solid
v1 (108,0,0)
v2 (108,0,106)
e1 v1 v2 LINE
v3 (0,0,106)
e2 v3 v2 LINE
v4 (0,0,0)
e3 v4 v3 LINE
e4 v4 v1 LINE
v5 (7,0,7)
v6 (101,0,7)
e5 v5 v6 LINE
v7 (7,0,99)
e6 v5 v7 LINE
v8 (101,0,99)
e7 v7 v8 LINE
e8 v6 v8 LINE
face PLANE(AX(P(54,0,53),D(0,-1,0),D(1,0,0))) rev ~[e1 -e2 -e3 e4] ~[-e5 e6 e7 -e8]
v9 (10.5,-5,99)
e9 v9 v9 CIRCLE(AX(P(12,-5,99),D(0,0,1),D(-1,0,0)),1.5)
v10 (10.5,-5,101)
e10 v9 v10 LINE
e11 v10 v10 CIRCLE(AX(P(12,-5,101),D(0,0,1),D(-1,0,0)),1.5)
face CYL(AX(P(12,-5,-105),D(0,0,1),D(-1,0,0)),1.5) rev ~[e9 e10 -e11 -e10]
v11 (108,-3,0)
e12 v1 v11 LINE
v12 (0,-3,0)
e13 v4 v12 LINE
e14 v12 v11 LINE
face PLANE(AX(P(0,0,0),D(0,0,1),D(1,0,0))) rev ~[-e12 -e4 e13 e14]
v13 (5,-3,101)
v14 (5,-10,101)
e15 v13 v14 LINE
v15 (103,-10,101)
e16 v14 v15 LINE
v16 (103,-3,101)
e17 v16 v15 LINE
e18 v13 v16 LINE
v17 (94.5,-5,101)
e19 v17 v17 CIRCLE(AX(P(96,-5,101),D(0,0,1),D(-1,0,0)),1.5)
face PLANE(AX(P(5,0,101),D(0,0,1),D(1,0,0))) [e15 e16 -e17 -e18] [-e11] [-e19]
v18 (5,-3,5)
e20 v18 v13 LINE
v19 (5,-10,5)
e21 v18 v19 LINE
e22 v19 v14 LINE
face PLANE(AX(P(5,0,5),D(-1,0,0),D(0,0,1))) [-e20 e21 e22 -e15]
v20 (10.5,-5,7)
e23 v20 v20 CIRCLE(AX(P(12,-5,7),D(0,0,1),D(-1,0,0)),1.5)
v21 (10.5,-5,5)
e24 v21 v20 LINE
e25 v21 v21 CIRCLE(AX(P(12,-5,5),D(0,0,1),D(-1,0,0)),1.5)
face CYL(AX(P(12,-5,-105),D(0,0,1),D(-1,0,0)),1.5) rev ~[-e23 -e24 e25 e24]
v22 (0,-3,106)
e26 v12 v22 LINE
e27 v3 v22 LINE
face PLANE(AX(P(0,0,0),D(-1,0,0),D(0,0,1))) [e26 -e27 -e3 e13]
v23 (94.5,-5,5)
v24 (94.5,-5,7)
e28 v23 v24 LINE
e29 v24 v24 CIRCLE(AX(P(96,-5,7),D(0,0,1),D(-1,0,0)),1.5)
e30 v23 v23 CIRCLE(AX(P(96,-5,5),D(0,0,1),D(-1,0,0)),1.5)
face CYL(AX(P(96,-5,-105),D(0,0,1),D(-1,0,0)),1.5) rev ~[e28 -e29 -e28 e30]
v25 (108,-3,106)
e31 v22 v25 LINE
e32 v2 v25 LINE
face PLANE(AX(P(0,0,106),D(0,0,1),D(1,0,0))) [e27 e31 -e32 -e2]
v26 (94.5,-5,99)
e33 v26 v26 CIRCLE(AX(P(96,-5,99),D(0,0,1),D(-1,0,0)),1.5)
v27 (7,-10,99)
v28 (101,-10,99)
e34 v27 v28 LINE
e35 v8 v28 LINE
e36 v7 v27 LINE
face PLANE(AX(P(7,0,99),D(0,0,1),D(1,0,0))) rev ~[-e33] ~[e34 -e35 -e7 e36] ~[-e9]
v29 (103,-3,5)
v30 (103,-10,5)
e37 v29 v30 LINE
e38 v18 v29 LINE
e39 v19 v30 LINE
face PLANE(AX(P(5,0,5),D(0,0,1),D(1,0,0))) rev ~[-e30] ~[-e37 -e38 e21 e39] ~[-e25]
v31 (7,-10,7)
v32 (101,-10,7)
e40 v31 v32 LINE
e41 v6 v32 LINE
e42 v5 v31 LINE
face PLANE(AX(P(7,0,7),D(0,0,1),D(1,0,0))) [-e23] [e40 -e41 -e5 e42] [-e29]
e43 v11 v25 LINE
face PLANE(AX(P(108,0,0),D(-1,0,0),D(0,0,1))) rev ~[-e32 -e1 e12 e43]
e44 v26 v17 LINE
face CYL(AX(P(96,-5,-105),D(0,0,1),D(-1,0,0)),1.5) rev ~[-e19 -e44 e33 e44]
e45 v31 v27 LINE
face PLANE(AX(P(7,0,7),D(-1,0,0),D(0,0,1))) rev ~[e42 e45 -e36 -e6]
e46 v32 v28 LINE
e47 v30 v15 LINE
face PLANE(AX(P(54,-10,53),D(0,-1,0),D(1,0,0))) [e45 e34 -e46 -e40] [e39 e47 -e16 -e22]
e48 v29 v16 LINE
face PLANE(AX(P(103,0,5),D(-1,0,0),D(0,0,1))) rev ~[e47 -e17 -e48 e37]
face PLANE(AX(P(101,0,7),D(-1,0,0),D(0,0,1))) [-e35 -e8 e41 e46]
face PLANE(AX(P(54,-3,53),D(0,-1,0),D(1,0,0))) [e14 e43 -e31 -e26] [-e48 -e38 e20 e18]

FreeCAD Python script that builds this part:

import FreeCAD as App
import Part
import Sketcher

doc = App.newDocument("Part")
params = doc.addObject("Spreadsheet::Sheet", "Params")
for row, (alias, value) in enumerate([
    ("sketch1_width", "98 mm"),
    ("sketch1_width2", "94 mm"),
    ("sketch1_height", "96 mm"),
    ("sketch1_height2", "92 mm"),
    ("pad1_length", "10 mm"),
    ("sketch2_width", "108 mm"),
    ("sketch2_width2", "98 mm"),
    ("sketch2_height", "106 mm"),
    ("sketch2_height2", "96 mm"),
    ("pad2_length", "3 mm"),
    ("sketch3_diameter", "3 mm"),
    ("hole_diameter", "3 mm"),
    ("hole_depth", "110 mm"),
], start=1):
    params.set(f"A{row}", alias)
    params.set(f"B{row}", "=" + value)
    params.setAlias(f"B{row}", alias)

body = doc.addObject("PartDesign::Body", "Body")

sketch1 = body.newObject("Sketcher::SketchObject", "Sketch")
sketch1.AttachmentSupport = (doc.getObject("XZ_Plane"), [""])
sketch1.MapMode = "FlatFace"
sketch1.addGeometry([
    Part.LineSegment(App.Vector(5, 101, 0), App.Vector(5, 5, 0)),
    Part.LineSegment(App.Vector(5, 5, 0), App.Vector(103, 5, 0)),
    Part.LineSegment(App.Vector(103, 5, 0), App.Vector(103, 101, 0)),
    Part.LineSegment(App.Vector(103, 101, 0), App.Vector(5, 101, 0)),
    Part.LineSegment(App.Vector(101, 7, 0), App.Vector(7, 7, 0)),
    Part.LineSegment(App.Vector(7, 7, 0), App.Vector(7, 99, 0)),
    Part.LineSegment(App.Vector(7, 99, 0), App.Vector(101, 99, 0)),
    Part.LineSegment(App.Vector(101, 99, 0), App.Vector(101, 7, 0)),
], False)
sketch1.addConstraint([
    Sketcher.Constraint("Coincident", 0, 2, 1, 1),
    Sketcher.Constraint("Coincident", 1, 2, 2, 1),
    Sketcher.Constraint("Coincident", 2, 2, 3, 1),
    Sketcher.Constraint("Coincident", 3, 2, 0, 1),
    Sketcher.Constraint("Coincident", 4, 2, 5, 1),
    Sketcher.Constraint("Coincident", 5, 2, 6, 1),
    Sketcher.Constraint("Coincident", 6, 2, 7, 1),
    Sketcher.Constraint("Coincident", 7, 2, 4, 1),
    Sketcher.Constraint("Vertical", 0),
    Sketcher.Constraint("Horizontal", 1),
    Sketcher.Constraint("Vertical", 2),
    Sketcher.Constraint("Horizontal", 3),
    Sketcher.Constraint("Horizontal", 4),
    Sketcher.Constraint("Vertical", 5),
    Sketcher.Constraint("Horizontal", 6),
    Sketcher.Constraint("Vertical", 7),
    Sketcher.Constraint("DistanceX", 1, 1, 1, 2, 98.0),
    Sketcher.Constraint("DistanceX", 4, 2, 4, 1, 94.0),
    Sketcher.Constraint("DistanceY", 0, 2, 0, 1, 96.0),
    Sketcher.Constraint("DistanceY", 5, 1, 5, 2, 92.0),
    Sketcher.Constraint("DistanceX", -1, 1, 0, 2, 5.0),
    Sketcher.Constraint("DistanceY", -1, 1, 0, 2, 5.0),
    Sketcher.Constraint("DistanceX", -1, 1, 4, 2, 7.0),
    Sketcher.Constraint("DistanceY", -1, 1, 4, 2, 7.0),
])
sketch1.setExpression("Constraints[16]", "Params.sketch1_width")
sketch1.setExpression("Constraints[17]", "Params.sketch1_width2")
sketch1.setExpression("Constraints[18]", "Params.sketch1_height")
sketch1.setExpression("Constraints[19]", "Params.sketch1_height2")
pad1 = body.newObject("PartDesign::Pad", "Pad")
pad1.Profile = sketch1
pad1.setExpression("Length", "Params.pad1_length")

sketch2 = body.newObject("Sketcher::SketchObject", "Sketch001")
sketch2.AttachmentSupport = (doc.getObject("XZ_Plane"), [""])
sketch2.MapMode = "FlatFace"
sketch2.addGeometry([
    Part.LineSegment(App.Vector(0, 106, 0), App.Vector(0, 0, 0)),
    Part.LineSegment(App.Vector(0, 0, 0), App.Vector(108, 0, 0)),
    Part.LineSegment(App.Vector(108, 0, 0), App.Vector(108, 106, 0)),
    Part.LineSegment(App.Vector(108, 106, 0), App.Vector(0, 106, 0)),
    Part.LineSegment(App.Vector(103, 5, 0), App.Vector(5, 5, 0)),
    Part.LineSegment(App.Vector(5, 5, 0), App.Vector(5, 101, 0)),
    Part.LineSegment(App.Vector(5, 101, 0), App.Vector(103, 101, 0)),
    Part.LineSegment(App.Vector(103, 101, 0), App.Vector(103, 5, 0)),
], False)
sketch2.addConstraint([
    Sketcher.Constraint("Coincident", 0, 2, 1, 1),
    Sketcher.Constraint("Coincident", 1, 2, 2, 1),
    Sketcher.Constraint("Coincident", 2, 2, 3, 1),
    Sketcher.Constraint("Coincident", 3, 2, 0, 1),
    Sketcher.Constraint("Coincident", 4, 2, 5, 1),
    Sketcher.Constraint("Coincident", 5, 2, 6, 1),
    Sketcher.Constraint("Coincident", 6, 2, 7, 1),
    Sketcher.Constraint("Coincident", 7, 2, 4, 1),
    Sketcher.Constraint("Vertical", 0),
    Sketcher.Constraint("Horizontal", 1),
    Sketcher.Constraint("Vertical", 2),
    Sketcher.Constraint("Horizontal", 3),
    Sketcher.Constraint("Horizontal", 4),
    Sketcher.Constraint("Vertical", 5),
    Sketcher.Constraint("Horizontal", 6),
    Sketcher.Constraint("Vertical", 7),
    Sketcher.Constraint("Coincident", 0, 2, -1, 1),
    Sketcher.Constraint("DistanceX", 1, 1, 1, 2, 108.0),
    Sketcher.Constraint("DistanceX", 4, 2, 4, 1, 98.0),
    Sketcher.Constraint("DistanceY", 0, 2, 0, 1, 106.0),
    Sketcher.Constraint("DistanceY", 5, 1, 5, 2, 96.0),
    Sketcher.Constraint("DistanceX", -1, 1, 4, 2, 5.0),
    Sketcher.Constraint("DistanceY", -1, 1, 4, 2, 5.0),
])
sketch2.setExpression("Constraints[17]", "Params.sketch2_width")
sketch2.setExpression("Constraints[18]", "Params.sketch2_width2")
sketch2.setExpression("Constraints[19]", "Params.sketch2_height")
sketch2.setExpression("Constraints[20]", "Params.sketch2_height2")
pad2 = body.newObject("PartDesign::Pad", "Pad001")
pad2.Profile = sketch2
pad2.setExpression("Length", "Params.pad2_length")

sketch3 = body.newObject("Sketcher::SketchObject", "Sketch002")
sketch3.AttachmentSupport = (doc.getObject("XY_Plane"), [""])
sketch3.MapMode = "FlatFace"
sketch3.AttachmentOffset = App.Placement(App.Vector(0, 0, 5), App.Rotation())
sketch3.addGeometry([
    Part.Circle(App.Vector(12, -5, 0), App.Vector(0, 0, 1), 1.5),
    Part.Circle(App.Vector(96, -5, 0), App.Vector(0, 0, 1), 1.5),
], False)
sketch3.addConstraint([
    Sketcher.Constraint("Equal", 0, 1),
    Sketcher.Constraint("Horizontal", 0, 3, 1, 3),
    Sketcher.Constraint("Diameter", 0, 3.0),
    Sketcher.Constraint("DistanceX", -1, 1, 0, 3, 12.0),
    Sketcher.Constraint("DistanceY", 0, 3, -1, 1, 5.0),
    Sketcher.Constraint("DistanceX", -1, 1, 1, 3, 96.0),
])
sketch3.setExpression("Constraints[2]", "Params.sketch3_diameter")
doc.recompute()
hole = body.newObject("PartDesign::Hole", "Hole")
hole.Profile = sketch3
hole.ThreadType = "None"
hole.setExpression("Diameter", "Params.hole_diameter")
hole.DepthType = "Dimension"
hole.setExpression("Depth", "Params.hole_depth")
hole.DrillPoint = "Angled"
hole.DrillPointAngle = 118
hole.Reversed = True

doc.recompute()
